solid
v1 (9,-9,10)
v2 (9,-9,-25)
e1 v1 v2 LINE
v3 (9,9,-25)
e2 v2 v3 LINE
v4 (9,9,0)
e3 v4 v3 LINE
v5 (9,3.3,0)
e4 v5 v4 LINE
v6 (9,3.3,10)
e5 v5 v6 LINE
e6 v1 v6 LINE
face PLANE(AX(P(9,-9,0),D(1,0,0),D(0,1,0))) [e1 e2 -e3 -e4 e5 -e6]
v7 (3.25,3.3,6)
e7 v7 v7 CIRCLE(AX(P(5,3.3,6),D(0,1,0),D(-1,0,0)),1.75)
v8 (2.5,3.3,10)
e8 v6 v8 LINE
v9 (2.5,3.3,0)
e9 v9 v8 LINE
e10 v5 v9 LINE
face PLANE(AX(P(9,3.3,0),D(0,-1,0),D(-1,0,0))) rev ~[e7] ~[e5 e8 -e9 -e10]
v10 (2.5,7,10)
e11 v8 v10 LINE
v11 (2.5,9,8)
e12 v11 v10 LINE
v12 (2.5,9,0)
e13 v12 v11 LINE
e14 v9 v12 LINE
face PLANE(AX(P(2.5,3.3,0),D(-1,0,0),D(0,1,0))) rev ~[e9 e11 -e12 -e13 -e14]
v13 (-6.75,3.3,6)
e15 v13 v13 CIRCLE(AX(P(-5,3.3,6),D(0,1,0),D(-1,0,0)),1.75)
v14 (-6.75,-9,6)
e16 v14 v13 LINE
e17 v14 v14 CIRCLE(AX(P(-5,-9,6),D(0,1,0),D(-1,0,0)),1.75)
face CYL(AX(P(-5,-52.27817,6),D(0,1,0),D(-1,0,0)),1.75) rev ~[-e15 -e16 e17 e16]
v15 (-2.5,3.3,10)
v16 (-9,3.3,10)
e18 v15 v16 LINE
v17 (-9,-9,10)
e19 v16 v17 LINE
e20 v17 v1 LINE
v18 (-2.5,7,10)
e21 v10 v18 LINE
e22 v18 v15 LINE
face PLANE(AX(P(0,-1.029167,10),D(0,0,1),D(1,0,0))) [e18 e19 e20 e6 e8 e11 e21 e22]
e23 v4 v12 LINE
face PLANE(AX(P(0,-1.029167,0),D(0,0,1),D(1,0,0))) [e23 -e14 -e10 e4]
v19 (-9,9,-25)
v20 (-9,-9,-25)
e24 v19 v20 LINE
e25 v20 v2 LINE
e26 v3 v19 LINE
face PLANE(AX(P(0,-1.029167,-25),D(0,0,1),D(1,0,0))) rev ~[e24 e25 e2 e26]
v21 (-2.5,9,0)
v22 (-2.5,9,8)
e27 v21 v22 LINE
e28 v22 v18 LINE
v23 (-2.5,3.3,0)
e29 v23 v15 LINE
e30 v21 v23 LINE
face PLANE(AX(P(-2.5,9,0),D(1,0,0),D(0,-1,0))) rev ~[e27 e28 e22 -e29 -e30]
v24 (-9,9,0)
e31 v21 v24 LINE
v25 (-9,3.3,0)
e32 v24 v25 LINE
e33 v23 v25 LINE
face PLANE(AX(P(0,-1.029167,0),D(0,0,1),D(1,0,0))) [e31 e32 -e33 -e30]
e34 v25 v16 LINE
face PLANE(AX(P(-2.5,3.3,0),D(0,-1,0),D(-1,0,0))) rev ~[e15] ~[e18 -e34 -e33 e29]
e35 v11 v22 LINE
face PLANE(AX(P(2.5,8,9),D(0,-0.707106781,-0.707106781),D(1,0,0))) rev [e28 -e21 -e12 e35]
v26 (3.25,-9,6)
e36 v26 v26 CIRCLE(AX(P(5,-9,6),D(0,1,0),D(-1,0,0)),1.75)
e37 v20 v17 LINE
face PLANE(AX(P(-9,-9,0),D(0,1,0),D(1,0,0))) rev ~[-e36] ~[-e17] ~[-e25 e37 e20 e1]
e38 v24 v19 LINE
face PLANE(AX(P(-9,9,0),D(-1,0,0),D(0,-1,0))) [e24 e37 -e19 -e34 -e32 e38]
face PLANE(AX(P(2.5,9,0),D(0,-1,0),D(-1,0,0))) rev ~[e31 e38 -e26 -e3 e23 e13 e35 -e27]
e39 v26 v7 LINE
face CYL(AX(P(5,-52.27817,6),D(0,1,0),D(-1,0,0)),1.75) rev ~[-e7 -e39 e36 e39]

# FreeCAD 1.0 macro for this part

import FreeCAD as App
import Part
import Sketcher
from FreeCAD import Vector


def edges_at(feature, points):
    """Names of the edges that pass closest to the given points."""
    edges = feature.Shape.Edges
    near = lambda p: min(range(len(edges)), key=lambda i: edges[i].distToShape(Part.Vertex(*p))[0])
    return sorted({f"Edge{near(p) + 1}" for p in points})

doc = App.newDocument("Part")
params = doc.addObject("Spreadsheet::Sheet", "Params")
for row, (alias, value) in enumerate([
    ("sketch1_width", "18 mm"),
    ("pad1_length", "25 mm"),
    ("sketch2_width", "5 mm"),
    ("sketch2_width2", "18 mm"),
    ("sketch2_height", "5.7 mm"),
    ("sketch2_height2", "12.3 mm"),
    ("pad2_length", "10 mm"),
    ("chamfer_size", "2 mm"),
    ("sketch3_diameter", "3.5 mm"),
    ("hole_diameter", "3.5 mm"),
], start=1):
    params.set(f"A{row}", alias)
    params.set(f"B{row}", "=" + value)
    params.setAlias(f"B{row}", alias)

body = doc.addObject("PartDesign::Body", "Body")

# Sketch on XY plane
sketch1 = doc.addObject("Sketcher::SketchObject", "Sketch")
body.addObject(sketch1)
sketch1.AttachmentSupport = (doc.XY_Plane, [""])
sketch1.MapMode = "FlatFace"
sketch1.addGeometry([
    Part.LineSegment(Vector(-9, 9, 0), Vector(-9, -9, 0)),
    Part.LineSegment(Vector(-9, -9, 0), Vector(9, -9, 0)),
    Part.LineSegment(Vector(9, -9, 0), Vector(9, 9, 0)),
    Part.LineSegment(Vector(9, 9, 0), Vector(-9, 9, 0)),
], False)
sketch1.addConstraint([
    Sketcher.Constraint("Coincident", 0, 2, 1, 1),
    Sketcher.Constraint("Coincident", 1, 2, 2, 1),
    Sketcher.Constraint("Coincident", 2, 2, 3, 1),
    Sketcher.Constraint("Coincident", 3, 2, 0, 1),
    Sketcher.Constraint("Vertical", 0),
    Sketcher.Constraint("Horizontal", 1),
    Sketcher.Constraint("Vertical", 2),
    Sketcher.Constraint("Horizontal", 3),
    Sketcher.Constraint("Symmetric", 0, 2, 2, 2, -1, 1),
    Sketcher.Constraint("Equal", 3, 0),
    Sketcher.Constraint("DistanceX", 1, 1, 1, 2, 18.0),
])
sketch1.setExpression("Constraints[10]", "Params.sketch1_width")
pad1 = doc.addObject("PartDesign::Pad", "Pad")
body.addObject(pad1)
pad1.Profile = sketch1
pad1.setExpression("Length", "Params.pad1_length")
pad1.Reversed = True

# Sketch on XY plane
sketch2 = doc.addObject("Sketcher::SketchObject", "Sketch001")
body.addObject(sketch2)
sketch2.AttachmentSupport = (doc.XY_Plane, [""])
sketch2.MapMode = "FlatFace"
sketch2.addGeometry([
    Part.LineSegment(Vector(2, 9, 0), Vector(-2, 9, 0)),  # 0
    Part.LineSegment(Vector(-2, 9, 0), Vector(-2, 3, 0)),  # 1
    Part.LineSegment(Vector(-2, 3, 0), Vector(-9, 3, 0)),  # 2
    Part.LineSegment(Vector(-9, 3, 0), Vector(-9, -9, 0)),  # 3
    Part.LineSegment(Vector(-9, -9, 0), Vector(9, -9, 0)),  # 4
    Part.LineSegment(Vector(9, -9, 0), Vector(9, 3, 0)),  # 5
    Part.LineSegment(Vector(9, 3, 0), Vector(2, 3, 0)),  # 6
    Part.LineSegment(Vector(2, 3, 0), Vector(2, 9, 0)),  # 7
], False)
sketch2.addConstraint([
    Sketcher.Constraint("Coincident", 0, 2, 1, 1),
    Sketcher.Constraint("Coincident", 1, 2, 2, 1),
    Sketcher.Constraint("Coincident", 2, 2, 3, 1),
    Sketcher.Constraint("Coincident", 3, 2, 4, 1),
    Sketcher.Constraint("Coincident", 4, 2, 5, 1),
    Sketcher.Constraint("Coincident", 5, 2, 6, 1),
    Sketcher.Constraint("Coincident", 6, 2, 7, 1),
    Sketcher.Constraint("Coincident", 7, 2, 0, 1),
    Sketcher.Constraint("Horizontal", 0),
    Sketcher.Constraint("Vertical", 1),
    Sketcher.Constraint("Horizontal", 2),
    Sketcher.Constraint("Vertical", 3),
    Sketcher.Constraint("Horizontal", 4),
    Sketcher.Constraint("Vertical", 5),
    Sketcher.Constraint("Horizontal", 6),
    Sketcher.Constraint("Vertical", 7),
    Sketcher.Constraint("Symmetric", 2, 2, 5, 2, -2),
    Sketcher.Constraint("Equal", 2, 6),
    Sketcher.Constraint("DistanceX", 0, 2, 0, 1, 5.0),
    Sketcher.Constraint("DistanceX", 4, 1, 4, 2, 18.0),
    Sketcher.Constraint("DistanceY", 1, 2, 1, 1, 5.7),
    Sketcher.Constraint("DistanceY", 3, 2, 3, 1, 12.3),
    Sketcher.Constraint("DistanceY", -1, 1, 0, 2, 9.0),
])
sketch2.setExpression("Constraints[18]", "Params.sketch2_width")
sketch2.setExpression("Constraints[19]", "Params.sketch2_width2")
sketch2.setExpression("Constraints[20]", "Params.sketch2_height")
sketch2.setExpression("Constraints[21]", "Params.sketch2_height2")
pad2 = doc.addObject("PartDesign::Pad", "Pad001")
body.addObject(pad2)
pad2.Profile = sketch2
pad2.setExpression("Length", "Params.pad2_length")
doc.recompute()

chamfer = doc.addObject("PartDesign::Chamfer", "Chamfer")
body.addObject(chamfer)
chamfer.Base = (pad2, edges_at(pad2, [(0, 9, 10)]))
chamfer.setExpression("Size", "Params.chamfer_size")

# Sketch on XZ plane
sketch3 = doc.addObject("Sketcher::SketchObject", "Sketch002")
body.addObject(sketch3)
sketch3.AttachmentSupport = (doc.XZ_Plane, [""])
sketch3.MapMode = "FlatFace"
sketch3.AttachmentOffset = App.Placement(Vector(0, 0, 9), App.Rotation())
sketch3.addGeometry([
    Part.Circle(Vector(-5, 6, 0), Vector(0, 0, 1), 1.8),
    Part.Circle(Vector(5, 6, 0), Vector(0, 0, 1), 1.8),
], False)
sketch3.addConstraint([
    Sketcher.Constraint("Equal", 0, 1),
    Sketcher.Constraint("Symmetric", 0, 3, 1, 3, -2),
    Sketcher.Constraint("Diameter", 0, 3.5),
    Sketcher.Constraint("DistanceX", 0, 3, -1, 1, 5.0),
    Sketcher.Constraint("DistanceY", -1, 1, 0, 3, 6.0),
])
sketch3.setExpression("Constraints[2]", "Params.sketch3_diameter")
doc.recompute()
hole = doc.addObject("PartDesign::Hole", "Hole")
body.addObject(hole)
hole.Profile = sketch3
hole.ThreadType = "None"
hole.setExpression("Diameter", "Params.hole_diameter")
hole.DepthType = "ThroughAll"

doc.recompute()
